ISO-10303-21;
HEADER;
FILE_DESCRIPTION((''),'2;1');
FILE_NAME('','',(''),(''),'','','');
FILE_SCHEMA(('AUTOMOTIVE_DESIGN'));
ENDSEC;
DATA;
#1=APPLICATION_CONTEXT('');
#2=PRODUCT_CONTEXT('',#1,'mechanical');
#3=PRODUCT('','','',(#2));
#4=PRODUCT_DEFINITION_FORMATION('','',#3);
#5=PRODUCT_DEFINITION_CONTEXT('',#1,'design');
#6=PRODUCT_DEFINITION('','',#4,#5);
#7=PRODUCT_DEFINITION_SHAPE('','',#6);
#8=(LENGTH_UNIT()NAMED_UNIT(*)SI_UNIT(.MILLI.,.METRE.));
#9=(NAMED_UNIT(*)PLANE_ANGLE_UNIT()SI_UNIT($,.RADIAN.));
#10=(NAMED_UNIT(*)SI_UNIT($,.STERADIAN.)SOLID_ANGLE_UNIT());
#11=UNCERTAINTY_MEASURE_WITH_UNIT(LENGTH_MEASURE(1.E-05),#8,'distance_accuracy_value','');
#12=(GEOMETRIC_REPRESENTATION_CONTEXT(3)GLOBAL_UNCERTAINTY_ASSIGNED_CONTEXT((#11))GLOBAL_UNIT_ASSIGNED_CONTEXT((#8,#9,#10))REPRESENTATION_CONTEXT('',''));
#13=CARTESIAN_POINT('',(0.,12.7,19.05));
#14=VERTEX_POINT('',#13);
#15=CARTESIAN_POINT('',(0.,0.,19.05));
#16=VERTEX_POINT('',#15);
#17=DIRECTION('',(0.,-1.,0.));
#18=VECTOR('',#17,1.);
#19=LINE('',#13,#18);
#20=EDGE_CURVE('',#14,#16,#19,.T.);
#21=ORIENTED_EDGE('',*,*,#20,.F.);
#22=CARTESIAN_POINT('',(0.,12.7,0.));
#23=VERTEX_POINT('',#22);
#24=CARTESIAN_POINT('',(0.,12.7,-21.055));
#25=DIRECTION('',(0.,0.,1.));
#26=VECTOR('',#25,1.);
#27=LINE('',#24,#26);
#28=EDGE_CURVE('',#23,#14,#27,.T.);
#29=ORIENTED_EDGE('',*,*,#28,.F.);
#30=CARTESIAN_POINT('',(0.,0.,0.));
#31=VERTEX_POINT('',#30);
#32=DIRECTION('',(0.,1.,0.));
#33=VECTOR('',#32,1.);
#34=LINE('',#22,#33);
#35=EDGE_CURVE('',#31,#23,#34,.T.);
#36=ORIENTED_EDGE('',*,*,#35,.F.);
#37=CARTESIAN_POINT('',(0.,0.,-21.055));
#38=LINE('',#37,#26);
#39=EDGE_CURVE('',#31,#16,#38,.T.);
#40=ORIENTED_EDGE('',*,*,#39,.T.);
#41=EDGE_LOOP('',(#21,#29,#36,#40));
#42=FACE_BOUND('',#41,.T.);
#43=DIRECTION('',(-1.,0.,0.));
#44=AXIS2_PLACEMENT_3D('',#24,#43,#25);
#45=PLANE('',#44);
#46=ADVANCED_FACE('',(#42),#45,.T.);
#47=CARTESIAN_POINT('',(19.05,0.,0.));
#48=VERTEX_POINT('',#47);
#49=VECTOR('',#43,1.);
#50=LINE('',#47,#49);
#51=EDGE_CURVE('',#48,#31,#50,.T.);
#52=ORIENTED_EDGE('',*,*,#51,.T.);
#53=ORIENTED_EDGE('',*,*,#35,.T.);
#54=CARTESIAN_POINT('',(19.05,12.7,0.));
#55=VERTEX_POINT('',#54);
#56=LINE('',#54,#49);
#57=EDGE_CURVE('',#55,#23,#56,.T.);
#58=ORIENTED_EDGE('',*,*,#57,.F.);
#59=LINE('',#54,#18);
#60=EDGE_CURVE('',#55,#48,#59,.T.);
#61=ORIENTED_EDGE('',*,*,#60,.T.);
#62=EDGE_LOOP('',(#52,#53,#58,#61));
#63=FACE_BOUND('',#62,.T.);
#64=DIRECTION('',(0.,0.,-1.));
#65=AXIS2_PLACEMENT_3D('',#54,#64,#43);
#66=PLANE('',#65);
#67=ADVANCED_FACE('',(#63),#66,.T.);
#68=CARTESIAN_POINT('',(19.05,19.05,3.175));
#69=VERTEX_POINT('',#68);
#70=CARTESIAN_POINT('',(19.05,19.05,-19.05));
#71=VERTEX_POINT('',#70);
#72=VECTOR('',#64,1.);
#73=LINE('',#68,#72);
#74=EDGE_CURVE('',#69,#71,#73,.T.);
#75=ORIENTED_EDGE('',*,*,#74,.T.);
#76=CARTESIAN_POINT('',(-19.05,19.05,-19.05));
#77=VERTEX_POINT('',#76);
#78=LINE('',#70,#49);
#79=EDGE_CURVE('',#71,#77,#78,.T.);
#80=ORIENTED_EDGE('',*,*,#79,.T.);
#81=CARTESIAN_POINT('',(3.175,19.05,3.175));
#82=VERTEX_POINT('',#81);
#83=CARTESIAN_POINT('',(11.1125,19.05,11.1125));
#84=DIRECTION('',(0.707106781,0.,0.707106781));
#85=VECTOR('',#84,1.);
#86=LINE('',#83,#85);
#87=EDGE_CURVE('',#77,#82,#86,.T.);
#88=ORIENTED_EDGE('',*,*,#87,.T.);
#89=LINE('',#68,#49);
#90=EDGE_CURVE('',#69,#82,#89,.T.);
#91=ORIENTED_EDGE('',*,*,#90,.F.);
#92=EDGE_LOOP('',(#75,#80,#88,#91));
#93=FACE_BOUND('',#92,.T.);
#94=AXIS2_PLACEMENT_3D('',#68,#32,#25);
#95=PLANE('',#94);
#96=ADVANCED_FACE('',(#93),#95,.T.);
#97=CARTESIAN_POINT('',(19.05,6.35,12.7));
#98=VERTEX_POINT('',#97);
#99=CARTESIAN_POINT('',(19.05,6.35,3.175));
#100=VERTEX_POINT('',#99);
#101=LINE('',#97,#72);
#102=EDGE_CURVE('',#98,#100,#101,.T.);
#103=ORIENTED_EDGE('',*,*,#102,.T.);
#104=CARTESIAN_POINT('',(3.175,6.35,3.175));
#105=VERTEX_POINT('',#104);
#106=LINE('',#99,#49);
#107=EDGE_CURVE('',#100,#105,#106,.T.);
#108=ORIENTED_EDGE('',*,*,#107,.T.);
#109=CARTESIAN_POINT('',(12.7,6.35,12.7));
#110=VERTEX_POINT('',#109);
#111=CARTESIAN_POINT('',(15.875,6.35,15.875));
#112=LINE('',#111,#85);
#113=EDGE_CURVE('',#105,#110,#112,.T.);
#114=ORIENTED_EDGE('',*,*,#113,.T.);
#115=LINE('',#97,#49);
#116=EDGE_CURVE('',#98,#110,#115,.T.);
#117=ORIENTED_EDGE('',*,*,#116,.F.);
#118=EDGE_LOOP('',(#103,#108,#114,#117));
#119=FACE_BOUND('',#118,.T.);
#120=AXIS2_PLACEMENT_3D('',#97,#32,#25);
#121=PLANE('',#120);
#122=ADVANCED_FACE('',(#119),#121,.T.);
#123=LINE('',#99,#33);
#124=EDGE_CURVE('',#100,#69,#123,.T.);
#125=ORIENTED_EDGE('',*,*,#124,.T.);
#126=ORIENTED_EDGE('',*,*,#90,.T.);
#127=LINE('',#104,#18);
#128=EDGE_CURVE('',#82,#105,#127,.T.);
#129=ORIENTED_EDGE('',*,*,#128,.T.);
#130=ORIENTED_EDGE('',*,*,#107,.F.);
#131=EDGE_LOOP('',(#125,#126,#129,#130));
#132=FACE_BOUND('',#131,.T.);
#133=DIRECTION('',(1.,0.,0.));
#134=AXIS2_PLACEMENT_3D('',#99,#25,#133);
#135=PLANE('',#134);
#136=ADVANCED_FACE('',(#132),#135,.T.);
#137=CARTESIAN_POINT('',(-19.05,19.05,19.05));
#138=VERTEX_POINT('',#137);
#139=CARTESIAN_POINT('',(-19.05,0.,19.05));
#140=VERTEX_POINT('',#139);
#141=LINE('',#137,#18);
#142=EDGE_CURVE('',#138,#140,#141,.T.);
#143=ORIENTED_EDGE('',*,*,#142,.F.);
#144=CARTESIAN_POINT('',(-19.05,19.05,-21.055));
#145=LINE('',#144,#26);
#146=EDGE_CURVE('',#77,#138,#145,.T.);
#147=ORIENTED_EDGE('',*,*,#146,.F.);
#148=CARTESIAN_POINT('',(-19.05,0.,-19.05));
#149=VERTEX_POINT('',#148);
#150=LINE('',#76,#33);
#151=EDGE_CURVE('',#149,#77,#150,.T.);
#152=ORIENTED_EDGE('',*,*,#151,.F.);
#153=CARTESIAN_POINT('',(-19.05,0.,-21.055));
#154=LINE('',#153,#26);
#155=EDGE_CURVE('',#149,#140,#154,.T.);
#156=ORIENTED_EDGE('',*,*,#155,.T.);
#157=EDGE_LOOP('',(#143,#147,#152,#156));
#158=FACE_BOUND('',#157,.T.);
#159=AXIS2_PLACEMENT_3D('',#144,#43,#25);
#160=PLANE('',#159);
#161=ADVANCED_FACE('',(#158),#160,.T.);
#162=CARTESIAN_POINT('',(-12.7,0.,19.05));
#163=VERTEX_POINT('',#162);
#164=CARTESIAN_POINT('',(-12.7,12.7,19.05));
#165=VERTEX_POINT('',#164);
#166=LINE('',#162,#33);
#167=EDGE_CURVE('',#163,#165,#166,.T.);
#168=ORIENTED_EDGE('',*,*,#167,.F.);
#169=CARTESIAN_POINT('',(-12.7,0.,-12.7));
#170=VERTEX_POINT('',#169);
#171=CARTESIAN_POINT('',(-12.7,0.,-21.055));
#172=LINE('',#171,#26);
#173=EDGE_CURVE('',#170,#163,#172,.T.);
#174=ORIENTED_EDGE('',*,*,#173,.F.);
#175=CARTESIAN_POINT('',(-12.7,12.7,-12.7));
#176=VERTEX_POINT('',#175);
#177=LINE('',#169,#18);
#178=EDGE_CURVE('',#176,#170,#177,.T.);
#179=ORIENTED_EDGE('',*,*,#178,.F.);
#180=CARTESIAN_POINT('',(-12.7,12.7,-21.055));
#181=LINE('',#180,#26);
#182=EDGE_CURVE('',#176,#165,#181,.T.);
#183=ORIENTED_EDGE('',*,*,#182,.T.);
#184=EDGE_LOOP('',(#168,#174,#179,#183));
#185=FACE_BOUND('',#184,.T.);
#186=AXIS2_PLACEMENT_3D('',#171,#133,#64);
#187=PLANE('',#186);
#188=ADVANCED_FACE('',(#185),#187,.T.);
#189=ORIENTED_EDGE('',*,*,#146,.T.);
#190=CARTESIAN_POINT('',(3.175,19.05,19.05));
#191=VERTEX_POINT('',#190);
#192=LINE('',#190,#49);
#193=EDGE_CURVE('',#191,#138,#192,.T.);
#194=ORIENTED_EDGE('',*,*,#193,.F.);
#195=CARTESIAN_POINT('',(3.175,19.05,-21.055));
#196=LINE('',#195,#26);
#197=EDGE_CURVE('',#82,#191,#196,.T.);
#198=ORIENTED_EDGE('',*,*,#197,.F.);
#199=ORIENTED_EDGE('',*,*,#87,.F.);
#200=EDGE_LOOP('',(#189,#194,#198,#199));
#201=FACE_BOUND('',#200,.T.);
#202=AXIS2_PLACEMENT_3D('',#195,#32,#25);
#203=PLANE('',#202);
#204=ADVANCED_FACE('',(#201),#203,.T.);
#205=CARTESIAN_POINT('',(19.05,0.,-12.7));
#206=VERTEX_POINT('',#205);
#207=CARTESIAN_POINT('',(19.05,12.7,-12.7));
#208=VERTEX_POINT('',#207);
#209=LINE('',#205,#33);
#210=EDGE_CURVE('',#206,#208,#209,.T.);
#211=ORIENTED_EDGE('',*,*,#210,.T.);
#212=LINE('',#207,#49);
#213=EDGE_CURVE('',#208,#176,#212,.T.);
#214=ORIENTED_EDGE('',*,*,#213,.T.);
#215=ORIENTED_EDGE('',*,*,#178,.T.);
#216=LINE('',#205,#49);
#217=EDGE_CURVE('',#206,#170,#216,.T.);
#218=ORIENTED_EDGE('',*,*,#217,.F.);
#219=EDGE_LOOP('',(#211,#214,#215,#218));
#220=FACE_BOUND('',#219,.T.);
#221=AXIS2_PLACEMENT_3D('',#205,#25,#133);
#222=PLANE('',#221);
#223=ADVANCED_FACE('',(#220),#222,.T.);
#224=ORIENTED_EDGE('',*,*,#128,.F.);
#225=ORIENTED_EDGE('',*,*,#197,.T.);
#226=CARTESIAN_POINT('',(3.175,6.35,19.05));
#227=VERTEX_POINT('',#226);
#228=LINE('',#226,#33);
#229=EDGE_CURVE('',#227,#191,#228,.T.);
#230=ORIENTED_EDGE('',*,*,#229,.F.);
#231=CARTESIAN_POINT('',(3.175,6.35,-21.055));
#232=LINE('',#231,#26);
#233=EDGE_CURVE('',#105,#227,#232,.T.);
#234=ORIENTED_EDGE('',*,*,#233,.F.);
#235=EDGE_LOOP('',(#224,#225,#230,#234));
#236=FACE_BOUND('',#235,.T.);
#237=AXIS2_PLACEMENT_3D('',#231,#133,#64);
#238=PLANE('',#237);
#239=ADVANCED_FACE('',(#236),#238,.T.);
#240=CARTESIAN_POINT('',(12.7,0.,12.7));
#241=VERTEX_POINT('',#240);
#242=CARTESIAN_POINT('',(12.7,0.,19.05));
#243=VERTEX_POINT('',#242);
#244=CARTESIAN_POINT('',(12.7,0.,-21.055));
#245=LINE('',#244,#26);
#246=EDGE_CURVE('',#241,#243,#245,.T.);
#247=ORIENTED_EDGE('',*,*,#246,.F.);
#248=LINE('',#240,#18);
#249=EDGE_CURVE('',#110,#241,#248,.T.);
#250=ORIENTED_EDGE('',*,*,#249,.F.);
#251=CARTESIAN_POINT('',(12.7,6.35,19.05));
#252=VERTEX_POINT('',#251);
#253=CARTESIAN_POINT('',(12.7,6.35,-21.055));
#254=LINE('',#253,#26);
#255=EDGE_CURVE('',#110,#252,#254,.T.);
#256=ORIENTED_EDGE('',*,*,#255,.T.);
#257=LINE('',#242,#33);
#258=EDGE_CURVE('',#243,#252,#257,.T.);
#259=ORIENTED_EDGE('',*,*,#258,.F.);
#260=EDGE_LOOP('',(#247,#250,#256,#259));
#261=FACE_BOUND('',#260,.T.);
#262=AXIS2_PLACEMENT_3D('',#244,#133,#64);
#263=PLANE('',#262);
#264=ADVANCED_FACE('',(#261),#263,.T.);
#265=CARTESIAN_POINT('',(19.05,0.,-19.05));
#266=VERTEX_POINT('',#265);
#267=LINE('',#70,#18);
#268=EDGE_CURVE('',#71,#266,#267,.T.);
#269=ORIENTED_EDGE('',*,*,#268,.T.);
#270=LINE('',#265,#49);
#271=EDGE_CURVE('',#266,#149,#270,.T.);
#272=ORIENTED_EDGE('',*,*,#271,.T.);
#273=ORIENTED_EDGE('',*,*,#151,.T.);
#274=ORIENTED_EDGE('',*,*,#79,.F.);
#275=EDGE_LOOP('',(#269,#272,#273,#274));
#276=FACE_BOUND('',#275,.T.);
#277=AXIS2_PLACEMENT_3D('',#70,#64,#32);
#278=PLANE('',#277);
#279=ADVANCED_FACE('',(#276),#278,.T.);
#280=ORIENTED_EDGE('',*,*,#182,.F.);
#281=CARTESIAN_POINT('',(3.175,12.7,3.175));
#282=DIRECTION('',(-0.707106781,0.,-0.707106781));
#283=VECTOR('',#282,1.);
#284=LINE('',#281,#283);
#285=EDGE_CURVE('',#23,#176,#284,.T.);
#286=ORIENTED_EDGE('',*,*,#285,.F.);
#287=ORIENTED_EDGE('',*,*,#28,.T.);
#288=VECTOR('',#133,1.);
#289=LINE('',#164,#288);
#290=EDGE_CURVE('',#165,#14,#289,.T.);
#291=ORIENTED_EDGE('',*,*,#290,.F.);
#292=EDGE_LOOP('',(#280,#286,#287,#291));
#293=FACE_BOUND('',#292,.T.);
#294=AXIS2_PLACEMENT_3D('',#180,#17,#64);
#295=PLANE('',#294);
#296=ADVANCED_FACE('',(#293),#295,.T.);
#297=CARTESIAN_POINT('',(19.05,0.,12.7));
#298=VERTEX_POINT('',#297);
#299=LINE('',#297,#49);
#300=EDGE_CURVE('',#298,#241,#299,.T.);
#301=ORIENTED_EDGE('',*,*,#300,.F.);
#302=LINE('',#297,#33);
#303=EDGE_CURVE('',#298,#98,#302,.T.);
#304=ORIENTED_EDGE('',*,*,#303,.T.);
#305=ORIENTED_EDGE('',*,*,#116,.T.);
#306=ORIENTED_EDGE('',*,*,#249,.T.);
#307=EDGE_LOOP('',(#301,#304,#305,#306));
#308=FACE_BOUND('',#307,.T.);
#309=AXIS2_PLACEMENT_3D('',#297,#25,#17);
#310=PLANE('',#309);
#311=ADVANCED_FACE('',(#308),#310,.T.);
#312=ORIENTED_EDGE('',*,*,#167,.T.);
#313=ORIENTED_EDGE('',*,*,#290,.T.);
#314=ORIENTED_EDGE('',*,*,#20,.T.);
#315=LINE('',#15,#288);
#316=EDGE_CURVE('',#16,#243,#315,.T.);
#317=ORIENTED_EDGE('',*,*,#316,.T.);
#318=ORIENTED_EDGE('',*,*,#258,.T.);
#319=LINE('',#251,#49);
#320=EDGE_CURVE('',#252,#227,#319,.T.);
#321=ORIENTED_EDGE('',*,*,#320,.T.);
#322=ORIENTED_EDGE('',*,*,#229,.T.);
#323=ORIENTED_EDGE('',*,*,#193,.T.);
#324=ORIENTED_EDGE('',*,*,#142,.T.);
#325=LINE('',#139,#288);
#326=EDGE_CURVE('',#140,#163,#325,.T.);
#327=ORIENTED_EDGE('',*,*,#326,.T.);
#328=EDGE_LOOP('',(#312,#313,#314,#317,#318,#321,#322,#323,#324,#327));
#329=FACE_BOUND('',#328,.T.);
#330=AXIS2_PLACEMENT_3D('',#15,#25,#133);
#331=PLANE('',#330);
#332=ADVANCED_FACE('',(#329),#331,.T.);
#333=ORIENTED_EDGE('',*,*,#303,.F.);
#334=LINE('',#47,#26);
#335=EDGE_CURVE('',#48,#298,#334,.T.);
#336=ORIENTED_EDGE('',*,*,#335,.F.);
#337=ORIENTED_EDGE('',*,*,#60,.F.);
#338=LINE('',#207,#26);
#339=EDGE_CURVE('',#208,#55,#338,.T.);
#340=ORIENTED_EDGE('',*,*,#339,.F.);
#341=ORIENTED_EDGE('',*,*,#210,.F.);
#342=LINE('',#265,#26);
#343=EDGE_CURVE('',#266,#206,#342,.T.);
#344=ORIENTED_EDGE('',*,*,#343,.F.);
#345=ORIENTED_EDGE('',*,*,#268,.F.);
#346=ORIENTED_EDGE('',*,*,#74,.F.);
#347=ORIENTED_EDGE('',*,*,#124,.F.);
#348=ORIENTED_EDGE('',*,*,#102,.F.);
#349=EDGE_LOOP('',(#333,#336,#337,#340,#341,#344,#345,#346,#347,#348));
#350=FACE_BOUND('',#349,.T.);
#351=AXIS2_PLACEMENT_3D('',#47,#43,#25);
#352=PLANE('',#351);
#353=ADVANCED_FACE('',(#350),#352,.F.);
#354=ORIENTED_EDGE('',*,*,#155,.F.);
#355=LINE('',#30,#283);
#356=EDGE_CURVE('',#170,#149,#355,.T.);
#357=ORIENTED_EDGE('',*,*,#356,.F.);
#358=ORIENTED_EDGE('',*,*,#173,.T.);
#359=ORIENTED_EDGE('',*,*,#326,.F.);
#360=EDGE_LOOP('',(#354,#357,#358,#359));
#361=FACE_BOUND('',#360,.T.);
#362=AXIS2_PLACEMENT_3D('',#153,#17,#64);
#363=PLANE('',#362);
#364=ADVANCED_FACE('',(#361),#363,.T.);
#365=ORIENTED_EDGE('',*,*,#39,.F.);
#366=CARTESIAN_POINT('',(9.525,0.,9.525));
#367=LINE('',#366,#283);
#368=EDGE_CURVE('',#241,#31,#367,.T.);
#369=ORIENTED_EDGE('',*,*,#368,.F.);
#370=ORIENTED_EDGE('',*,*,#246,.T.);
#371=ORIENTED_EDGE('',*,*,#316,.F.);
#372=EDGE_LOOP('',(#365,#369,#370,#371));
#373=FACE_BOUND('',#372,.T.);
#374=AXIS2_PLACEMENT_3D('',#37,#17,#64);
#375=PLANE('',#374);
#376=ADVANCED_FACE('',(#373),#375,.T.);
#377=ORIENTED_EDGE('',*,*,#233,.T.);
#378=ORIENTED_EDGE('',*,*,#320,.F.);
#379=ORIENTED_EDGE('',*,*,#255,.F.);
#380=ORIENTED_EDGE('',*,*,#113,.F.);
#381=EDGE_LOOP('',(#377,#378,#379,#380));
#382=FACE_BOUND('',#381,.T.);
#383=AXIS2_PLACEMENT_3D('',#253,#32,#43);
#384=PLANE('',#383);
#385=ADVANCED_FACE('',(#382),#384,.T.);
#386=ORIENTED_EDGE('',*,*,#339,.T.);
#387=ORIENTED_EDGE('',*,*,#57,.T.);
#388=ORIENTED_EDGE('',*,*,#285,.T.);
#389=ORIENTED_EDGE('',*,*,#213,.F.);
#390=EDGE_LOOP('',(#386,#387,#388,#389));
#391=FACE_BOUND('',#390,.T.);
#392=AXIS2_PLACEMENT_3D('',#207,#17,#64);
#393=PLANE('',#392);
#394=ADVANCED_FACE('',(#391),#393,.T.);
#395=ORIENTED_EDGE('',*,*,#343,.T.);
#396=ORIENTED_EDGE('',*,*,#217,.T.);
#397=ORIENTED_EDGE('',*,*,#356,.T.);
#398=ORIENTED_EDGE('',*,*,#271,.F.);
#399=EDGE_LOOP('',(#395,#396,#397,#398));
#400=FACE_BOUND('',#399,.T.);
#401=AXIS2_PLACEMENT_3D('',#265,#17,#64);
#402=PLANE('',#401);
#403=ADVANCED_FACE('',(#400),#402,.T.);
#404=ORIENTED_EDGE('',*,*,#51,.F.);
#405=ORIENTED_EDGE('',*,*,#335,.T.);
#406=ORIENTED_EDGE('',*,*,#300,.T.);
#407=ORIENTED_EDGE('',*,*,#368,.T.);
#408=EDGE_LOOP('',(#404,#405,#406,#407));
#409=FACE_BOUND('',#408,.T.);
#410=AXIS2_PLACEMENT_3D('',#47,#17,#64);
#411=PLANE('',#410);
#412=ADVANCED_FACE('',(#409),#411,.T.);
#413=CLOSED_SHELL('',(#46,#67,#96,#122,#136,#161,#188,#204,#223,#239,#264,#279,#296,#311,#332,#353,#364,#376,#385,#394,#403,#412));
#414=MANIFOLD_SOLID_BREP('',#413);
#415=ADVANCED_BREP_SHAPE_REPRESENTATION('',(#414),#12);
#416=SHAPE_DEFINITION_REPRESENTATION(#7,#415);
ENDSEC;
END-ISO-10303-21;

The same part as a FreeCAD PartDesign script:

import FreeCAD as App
import Part
import Sketcher
from FreeCAD import Vector
Q = App.Units.Quantity


def add_polygon(sketch, points):
    """Adds a closed chain of lines whose ends are joined by coincident constraints."""
    first, n = sketch.GeometryCount, len(points)
    for a, b in zip(points, points[1:] + points[:1]):
        sketch.addGeometry(Part.LineSegment(App.Vector(*a, 0), App.Vector(*b, 0)), False)
    for i in range(n):
        sketch.addConstraint(Sketcher.Constraint("Coincident", first + i, 2, first + (i + 1) % n, 1))

doc = App.newDocument("Part")
body = doc.addObject("PartDesign::Body", "Body")

# Sketch on XY plane
sketch1 = body.newObject("Sketcher::SketchObject", "Sketch")
sketch1.AttachmentSupport = (doc.getObject("XY_Plane"), [""])
sketch1.MapMode = "FlatFace"
sketch1.AttachmentOffset = App.Placement(Vector(0, 0, 0.75 * 25.4), App.Rotation())
add_polygon(sketch1, [(0, 0), (13, 0), (13, 6), (3, 6), (3, 19), (-19, 19), (-19, 0), (-13, 0), (-13, 13), (0, 13)])  # lines 0-9
sketch1.addConstraint([
    Sketcher.Constraint("Horizontal", 0),
    Sketcher.Constraint("Vertical", 1),
    Sketcher.Constraint("Horizontal", 2),
    Sketcher.Constraint("Vertical", 3),
    Sketcher.Constraint("Horizontal", 4),
    Sketcher.Constraint("Vertical", 5),
    Sketcher.Constraint("Horizontal", 6),
    Sketcher.Constraint("Vertical", 7),
    Sketcher.Constraint("Horizontal", 8),
    Sketcher.Constraint("Vertical", 9),
    Sketcher.Constraint("Coincident", 9, 2, -1, 1),
    Sketcher.Constraint("Symmetric", 0, 2, 6, 2, -1, 1),
    Sketcher.Constraint("Equal", 6, 1),
    Sketcher.Constraint("Equal", 8, 3),
    Sketcher.Constraint("Equal", 3, 7),
    Sketcher.Constraint("DistanceX", 0, 1, 0, 2, Q("0.5 in")),
    Sketcher.Constraint("DistanceX", 6, 1, 6, 2, Q("0.25 in")),
    Sketcher.Constraint("DistanceX", 2, 2, 2, 1, Q("0.375 in")),
])

# Sketch on XZ plane
sketch2 = body.newObject("Sketcher::SketchObject", "Sketch001")
sketch2.AttachmentSupport = (doc.getObject("XZ_Plane"), [""])
sketch2.MapMode = "FlatFace"
sketch2.addGeometry([
    Part.LineSegment(Vector(19, 0, 0), Vector(0, 0, 0)),
    Part.LineSegment(Vector(0, 0, 0), Vector(0, 19, 0)),
], False)
sketch2.addConstraint([
    Sketcher.Constraint("Coincident", 0, 2, 1, 1),
    Sketcher.Constraint("Horizontal", 0),
    Sketcher.Constraint("Vertical", 1),
    Sketcher.Constraint("Coincident", 0, 2, -1, 1),
    Sketcher.Constraint("Equal", 0, 1),
    Sketcher.Constraint("DistanceX", 0, 2, 0, 1, Q("0.75 in")),
])
doc.recompute()

additivepipe = body.newObject("PartDesign::AdditivePipe", "AdditivePipe")
additivepipe.Profile = sketch1
additivepipe.Spine = (sketch2, ["Edge1", "Edge2"])
additivepipe.Transition = "Right corner"

doc.recompute()
